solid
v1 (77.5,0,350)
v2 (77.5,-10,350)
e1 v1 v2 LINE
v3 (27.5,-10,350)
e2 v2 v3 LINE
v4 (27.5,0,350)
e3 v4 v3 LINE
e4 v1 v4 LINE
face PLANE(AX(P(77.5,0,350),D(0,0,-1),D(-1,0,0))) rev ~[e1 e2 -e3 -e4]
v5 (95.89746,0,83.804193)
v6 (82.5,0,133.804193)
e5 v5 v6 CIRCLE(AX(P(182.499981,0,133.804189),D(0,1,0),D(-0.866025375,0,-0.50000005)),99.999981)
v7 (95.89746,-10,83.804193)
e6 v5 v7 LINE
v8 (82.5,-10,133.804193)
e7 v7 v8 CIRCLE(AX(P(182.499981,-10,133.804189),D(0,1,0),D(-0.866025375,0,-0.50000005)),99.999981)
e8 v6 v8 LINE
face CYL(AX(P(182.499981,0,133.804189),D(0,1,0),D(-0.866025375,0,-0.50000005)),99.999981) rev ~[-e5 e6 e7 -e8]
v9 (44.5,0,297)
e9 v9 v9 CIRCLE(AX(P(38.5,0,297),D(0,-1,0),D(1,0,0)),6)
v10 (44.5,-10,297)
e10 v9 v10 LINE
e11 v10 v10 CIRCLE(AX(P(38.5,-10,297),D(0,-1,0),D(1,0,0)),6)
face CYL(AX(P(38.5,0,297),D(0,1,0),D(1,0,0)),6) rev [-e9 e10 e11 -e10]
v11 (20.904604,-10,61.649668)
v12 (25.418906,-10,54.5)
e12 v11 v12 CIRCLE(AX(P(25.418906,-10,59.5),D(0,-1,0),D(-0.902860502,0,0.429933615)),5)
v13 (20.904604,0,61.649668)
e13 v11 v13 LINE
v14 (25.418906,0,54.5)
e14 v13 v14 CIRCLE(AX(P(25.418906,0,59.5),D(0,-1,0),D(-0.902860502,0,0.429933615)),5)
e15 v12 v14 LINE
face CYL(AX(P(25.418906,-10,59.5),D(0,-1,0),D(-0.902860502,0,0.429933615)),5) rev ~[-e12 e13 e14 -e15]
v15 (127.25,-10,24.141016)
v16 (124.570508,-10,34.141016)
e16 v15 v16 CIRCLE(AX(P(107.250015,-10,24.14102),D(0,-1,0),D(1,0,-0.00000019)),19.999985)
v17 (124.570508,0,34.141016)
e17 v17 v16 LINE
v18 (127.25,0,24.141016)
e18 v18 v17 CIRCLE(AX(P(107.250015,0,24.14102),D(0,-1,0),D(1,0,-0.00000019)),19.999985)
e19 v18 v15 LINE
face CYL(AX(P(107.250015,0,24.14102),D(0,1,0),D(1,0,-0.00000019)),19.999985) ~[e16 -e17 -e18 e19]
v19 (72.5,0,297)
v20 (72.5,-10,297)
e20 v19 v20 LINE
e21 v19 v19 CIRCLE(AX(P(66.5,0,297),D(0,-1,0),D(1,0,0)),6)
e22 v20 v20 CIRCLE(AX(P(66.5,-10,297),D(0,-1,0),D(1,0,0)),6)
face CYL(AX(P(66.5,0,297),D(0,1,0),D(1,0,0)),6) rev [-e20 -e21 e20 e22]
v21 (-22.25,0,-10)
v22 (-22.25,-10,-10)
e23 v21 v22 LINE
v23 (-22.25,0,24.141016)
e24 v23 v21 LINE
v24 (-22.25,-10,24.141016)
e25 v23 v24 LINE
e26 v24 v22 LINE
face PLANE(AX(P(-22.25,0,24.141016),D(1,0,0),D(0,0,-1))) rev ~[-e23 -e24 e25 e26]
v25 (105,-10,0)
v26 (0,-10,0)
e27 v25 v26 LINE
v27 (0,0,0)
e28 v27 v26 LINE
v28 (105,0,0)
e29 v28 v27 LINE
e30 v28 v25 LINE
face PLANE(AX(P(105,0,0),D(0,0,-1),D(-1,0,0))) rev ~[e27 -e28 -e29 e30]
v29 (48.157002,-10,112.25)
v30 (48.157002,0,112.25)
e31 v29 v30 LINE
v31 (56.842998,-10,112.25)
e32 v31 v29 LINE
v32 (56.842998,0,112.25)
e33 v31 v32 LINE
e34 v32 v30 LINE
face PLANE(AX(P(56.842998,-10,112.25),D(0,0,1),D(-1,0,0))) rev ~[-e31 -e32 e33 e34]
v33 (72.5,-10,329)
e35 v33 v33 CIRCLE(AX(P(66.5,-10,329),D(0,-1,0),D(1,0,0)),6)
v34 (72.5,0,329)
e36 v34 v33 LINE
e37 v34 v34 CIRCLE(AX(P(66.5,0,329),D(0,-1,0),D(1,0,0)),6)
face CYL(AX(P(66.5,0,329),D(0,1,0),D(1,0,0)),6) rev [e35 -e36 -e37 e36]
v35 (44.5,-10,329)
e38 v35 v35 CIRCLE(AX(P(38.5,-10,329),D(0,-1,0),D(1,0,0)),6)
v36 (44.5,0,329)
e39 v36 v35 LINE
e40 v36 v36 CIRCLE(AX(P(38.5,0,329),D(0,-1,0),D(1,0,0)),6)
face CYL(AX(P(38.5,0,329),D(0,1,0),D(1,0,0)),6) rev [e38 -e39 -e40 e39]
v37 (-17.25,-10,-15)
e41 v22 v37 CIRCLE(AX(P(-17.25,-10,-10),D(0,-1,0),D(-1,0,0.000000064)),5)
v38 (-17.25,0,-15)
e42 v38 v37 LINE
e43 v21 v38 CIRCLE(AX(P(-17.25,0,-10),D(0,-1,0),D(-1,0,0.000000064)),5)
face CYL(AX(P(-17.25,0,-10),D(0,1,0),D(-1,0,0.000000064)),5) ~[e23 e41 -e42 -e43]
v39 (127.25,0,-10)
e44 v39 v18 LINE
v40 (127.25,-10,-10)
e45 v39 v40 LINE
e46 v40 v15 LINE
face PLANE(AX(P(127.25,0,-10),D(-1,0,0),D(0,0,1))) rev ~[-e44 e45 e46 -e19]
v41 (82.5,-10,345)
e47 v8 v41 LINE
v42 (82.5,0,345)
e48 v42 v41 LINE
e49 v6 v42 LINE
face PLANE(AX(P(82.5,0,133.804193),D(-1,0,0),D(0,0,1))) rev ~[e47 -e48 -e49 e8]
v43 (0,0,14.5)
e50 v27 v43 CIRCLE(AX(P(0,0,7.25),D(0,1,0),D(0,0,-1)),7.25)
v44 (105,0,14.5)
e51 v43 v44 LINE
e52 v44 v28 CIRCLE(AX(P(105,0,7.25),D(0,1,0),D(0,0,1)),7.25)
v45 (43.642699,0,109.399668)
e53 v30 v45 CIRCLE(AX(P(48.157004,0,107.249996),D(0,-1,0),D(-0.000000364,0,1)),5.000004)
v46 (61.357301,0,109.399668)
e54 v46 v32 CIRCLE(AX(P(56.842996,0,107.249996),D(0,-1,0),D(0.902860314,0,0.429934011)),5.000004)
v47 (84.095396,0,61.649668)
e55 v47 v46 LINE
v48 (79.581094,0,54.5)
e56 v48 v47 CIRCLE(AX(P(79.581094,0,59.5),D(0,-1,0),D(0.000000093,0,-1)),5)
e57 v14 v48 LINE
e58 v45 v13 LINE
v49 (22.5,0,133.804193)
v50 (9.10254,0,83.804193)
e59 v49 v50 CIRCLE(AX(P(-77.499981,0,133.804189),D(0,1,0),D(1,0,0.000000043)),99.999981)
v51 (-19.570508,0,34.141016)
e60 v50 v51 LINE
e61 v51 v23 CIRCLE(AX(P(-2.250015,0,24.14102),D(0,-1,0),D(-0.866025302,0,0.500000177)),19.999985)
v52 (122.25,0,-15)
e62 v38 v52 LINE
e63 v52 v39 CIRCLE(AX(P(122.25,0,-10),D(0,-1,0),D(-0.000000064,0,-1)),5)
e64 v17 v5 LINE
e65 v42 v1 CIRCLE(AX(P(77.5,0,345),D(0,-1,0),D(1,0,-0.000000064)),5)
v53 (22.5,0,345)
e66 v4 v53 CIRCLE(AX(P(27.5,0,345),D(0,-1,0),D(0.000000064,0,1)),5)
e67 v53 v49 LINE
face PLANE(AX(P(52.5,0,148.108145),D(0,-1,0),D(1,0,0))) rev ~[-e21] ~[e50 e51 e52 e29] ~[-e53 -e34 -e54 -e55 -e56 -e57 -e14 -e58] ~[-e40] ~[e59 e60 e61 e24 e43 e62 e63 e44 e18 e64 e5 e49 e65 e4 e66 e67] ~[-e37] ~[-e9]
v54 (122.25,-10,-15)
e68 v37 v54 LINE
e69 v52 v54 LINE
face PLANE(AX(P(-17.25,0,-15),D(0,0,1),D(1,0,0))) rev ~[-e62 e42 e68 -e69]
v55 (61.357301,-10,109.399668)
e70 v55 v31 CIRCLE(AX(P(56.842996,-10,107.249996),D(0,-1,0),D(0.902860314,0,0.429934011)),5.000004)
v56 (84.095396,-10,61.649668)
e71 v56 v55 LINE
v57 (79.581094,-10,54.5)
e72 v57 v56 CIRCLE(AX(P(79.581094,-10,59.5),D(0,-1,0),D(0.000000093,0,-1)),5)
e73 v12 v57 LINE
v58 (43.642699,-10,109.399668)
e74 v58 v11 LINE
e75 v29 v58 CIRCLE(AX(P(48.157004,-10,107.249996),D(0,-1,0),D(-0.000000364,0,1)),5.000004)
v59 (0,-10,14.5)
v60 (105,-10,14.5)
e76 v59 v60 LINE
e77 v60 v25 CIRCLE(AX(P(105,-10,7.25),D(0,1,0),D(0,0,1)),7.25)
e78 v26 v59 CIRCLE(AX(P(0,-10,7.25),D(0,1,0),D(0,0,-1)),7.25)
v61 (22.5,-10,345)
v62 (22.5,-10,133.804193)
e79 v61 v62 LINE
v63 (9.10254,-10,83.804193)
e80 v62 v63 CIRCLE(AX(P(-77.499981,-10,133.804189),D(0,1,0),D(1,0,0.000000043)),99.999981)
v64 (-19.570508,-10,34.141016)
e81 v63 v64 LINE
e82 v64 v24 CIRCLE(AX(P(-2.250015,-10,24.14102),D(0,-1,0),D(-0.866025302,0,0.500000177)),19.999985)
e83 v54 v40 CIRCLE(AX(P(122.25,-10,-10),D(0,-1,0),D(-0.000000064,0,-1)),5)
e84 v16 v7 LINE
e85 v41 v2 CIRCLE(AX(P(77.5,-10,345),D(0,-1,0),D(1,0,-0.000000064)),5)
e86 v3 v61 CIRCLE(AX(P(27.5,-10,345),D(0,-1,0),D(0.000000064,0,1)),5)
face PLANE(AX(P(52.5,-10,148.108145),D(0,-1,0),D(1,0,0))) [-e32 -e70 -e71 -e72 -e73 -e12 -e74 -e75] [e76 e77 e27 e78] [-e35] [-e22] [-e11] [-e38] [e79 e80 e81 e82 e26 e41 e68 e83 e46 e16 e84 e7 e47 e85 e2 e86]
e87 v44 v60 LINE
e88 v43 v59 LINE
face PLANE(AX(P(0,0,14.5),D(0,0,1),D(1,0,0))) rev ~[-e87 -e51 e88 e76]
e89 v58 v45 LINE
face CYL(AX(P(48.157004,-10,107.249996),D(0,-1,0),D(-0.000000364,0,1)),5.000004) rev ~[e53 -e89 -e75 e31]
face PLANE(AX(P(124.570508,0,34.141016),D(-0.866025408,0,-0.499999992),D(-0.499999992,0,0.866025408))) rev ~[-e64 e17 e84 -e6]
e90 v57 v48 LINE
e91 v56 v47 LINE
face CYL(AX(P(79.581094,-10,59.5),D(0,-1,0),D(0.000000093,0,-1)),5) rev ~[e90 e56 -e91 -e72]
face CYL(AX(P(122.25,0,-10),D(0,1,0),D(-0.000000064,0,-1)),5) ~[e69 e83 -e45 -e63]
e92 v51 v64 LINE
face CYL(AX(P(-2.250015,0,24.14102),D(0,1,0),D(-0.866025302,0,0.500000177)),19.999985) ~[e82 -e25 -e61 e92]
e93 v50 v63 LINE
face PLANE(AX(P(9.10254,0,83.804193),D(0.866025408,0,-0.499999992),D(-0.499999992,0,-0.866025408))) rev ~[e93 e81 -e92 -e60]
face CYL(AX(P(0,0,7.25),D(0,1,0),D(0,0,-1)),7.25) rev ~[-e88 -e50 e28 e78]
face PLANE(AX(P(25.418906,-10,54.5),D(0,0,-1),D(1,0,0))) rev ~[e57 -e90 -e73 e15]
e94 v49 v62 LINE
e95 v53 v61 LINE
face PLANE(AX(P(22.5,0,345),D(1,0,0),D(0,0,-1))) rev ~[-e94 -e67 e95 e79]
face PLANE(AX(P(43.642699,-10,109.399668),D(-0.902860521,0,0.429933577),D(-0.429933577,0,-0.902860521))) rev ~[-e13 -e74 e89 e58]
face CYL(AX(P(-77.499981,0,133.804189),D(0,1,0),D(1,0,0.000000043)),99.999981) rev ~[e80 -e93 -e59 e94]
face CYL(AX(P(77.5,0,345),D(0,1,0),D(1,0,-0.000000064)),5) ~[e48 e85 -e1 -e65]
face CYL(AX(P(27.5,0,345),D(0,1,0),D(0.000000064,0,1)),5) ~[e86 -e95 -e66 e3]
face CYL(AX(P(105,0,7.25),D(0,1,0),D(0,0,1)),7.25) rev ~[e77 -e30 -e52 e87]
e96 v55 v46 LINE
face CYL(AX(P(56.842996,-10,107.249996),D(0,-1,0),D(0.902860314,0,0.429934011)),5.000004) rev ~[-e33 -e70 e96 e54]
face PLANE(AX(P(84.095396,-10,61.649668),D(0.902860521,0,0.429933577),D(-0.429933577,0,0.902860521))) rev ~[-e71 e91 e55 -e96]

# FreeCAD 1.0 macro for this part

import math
import FreeCAD as App
import Part
import Sketcher

V = App.Vector
Q = App.Units.Quantity

doc = App.newDocument("Part")
body = doc.addObject("PartDesign::Body", "Body")

sketch1 = doc.addObject("Sketcher::SketchObject", "Sketch")
body.addObject(sketch1)
sketch1.AttachmentSupport = (doc.XZ_Plane, [""])
sketch1.MapMode = "FlatFace"
sketch1.addGeometry(Part.ArcOfCircle(Part.Circle(V(-17.25, -10, 0), V(0, 0, 1), 5), math.radians(179.999996), math.radians(270.000004)), False)
sketch1.addGeometry(Part.LineSegment(V(-17.25, -15, 0), V(122.25, -15, 0)), False)
sketch1.addGeometry(Part.ArcOfCircle(Part.Circle(V(122.25, -10, 0), V(0, 0, 1), 5), math.radians(-90.000004), math.radians(0.000004)), False)
sketch1.addGeometry(Part.LineSegment(V(127.25, -10, 0), V(127.25, 24.141016, 0)), False)
sketch1.addGeometry(Part.ArcOfCircle(Part.Circle(V(107.250015, 24.14102, 0), V(0, 0, 1), 19.999985), math.radians(-0.000011), math.radians(30.000012)), False)
sketch1.addGeometry(Part.LineSegment(V(124.570508, 34.141016, 0), V(95.89746, 83.804193, 0)), False)
sketch1.addGeometry(Part.ArcOfCircle(Part.Circle(V(182.499981, 133.804189, 0), V(0, 0, 1), 99.999981), math.radians(179.999998), math.radians(210.000003)), False)
sketch1.addGeometry(Part.LineSegment(V(82.5, 133.804193, 0), V(82.5, 345, 0)), False)
sketch1.addGeometry(Part.ArcOfCircle(Part.Circle(V(77.5, 345, 0), V(0, 0, 1), 5), math.radians(-0.000004), math.radians(90.000004)), False)
sketch1.addGeometry(Part.LineSegment(V(77.5, 350, 0), V(27.5, 350, 0)), False)
sketch1.addGeometry(Part.ArcOfCircle(Part.Circle(V(27.5, 345, 0), V(0, 0, 1), 5), math.radians(89.999996), math.radians(180.000004)), False)
sketch1.addGeometry(Part.LineSegment(V(22.5, 345, 0), V(22.5, 133.804193, 0)), False)
sketch1.addGeometry(Part.ArcOfCircle(Part.Circle(V(-77.499981, 133.804189, 0), V(0, 0, 1), 99.999981), math.radians(-30.000003), math.radians(0.000002)), False)
sketch1.addGeometry(Part.LineSegment(V(9.10254, 83.804193, 0), V(-19.570508, 34.141016, 0)), False)
sketch1.addGeometry(Part.ArcOfCircle(Part.Circle(V(-2.250015, 24.14102, 0), V(0, 0, 1), 19.999985), math.radians(149.999988), math.radians(180.000011)), False)
sketch1.addGeometry(Part.LineSegment(V(-22.25, 24.141016, 0), V(-22.25, -10, 0)), False)
sketch1.addGeometry(Part.ArcOfCircle(Part.Circle(V(105, 7.25, 0), V(0, 0, 1), 7.25), math.radians(-90), math.radians(90)), False)
sketch1.addGeometry(Part.LineSegment(V(105, 0, 0), V(0, 0, 0)), False)
sketch1.addGeometry(Part.ArcOfCircle(Part.Circle(V(0, 7.25, 0), V(0, 0, 1), 7.25), math.radians(90), math.radians(270)), False)
sketch1.addGeometry(Part.LineSegment(V(0, 14.5, 0), V(105, 14.5, 0)), False)
sketch1.addGeometry(Part.Circle(V(38.5, 297, 0), V(0, 0, 1), 6), False)
sketch1.addGeometry(Part.Circle(V(38.5, 329, 0), V(0, 0, 1), 6), False)
sketch1.addGeometry(Part.Circle(V(66.5, 297, 0), V(0, 0, 1), 6), False)
sketch1.addGeometry(Part.Circle(V(66.5, 329, 0), V(0, 0, 1), 6), False)
sketch1.addConstraint(Sketcher.Constraint("Coincident", 0, 2, 1, 1))
sketch1.addConstraint(Sketcher.Constraint("Coincident", 1, 2, 2, 1))
sketch1.addConstraint(Sketcher.Constraint("Coincident", 2, 2, 3, 1))
sketch1.addConstraint(Sketcher.Constraint("Coincident", 3, 2, 4, 1))
sketch1.addConstraint(Sketcher.Constraint("Coincident", 4, 2, 5, 1))
sketch1.addConstraint(Sketcher.Constraint("Coincident", 5, 2, 6, 2))
sketch1.addConstraint(Sketcher.Constraint("Coincident", 6, 1, 7, 1))
sketch1.addConstraint(Sketcher.Constraint("Coincident", 7, 2, 8, 1))
sketch1.addConstraint(Sketcher.Constraint("Coincident", 8, 2, 9, 1))
sketch1.addConstraint(Sketcher.Constraint("Coincident", 9, 2, 10, 1))
sketch1.addConstraint(Sketcher.Constraint("Coincident", 10, 2, 11, 1))
sketch1.addConstraint(Sketcher.Constraint("Coincident", 11, 2, 12, 2))
sketch1.addConstraint(Sketcher.Constraint("Coincident", 12, 1, 13, 1))
sketch1.addConstraint(Sketcher.Constraint("Coincident", 13, 2, 14, 1))
sketch1.addConstraint(Sketcher.Constraint("Coincident", 14, 2, 15, 1))
sketch1.addConstraint(Sketcher.Constraint("Coincident", 15, 2, 0, 1))
sketch1.addConstraint(Sketcher.Constraint("Coincident", 16, 1, 17, 1))
sketch1.addConstraint(Sketcher.Constraint("Coincident", 17, 2, 18, 2))
sketch1.addConstraint(Sketcher.Constraint("Coincident", 18, 1, 19, 1))
sketch1.addConstraint(Sketcher.Constraint("Coincident", 19, 2, 16, 2))
sketch1.addConstraint(Sketcher.Constraint("Horizontal", 1))
sketch1.addConstraint(Sketcher.Constraint("Vertical", 3))
sketch1.addConstraint(Sketcher.Constraint("Vertical", 7))
sketch1.addConstraint(Sketcher.Constraint("Horizontal", 9))
sketch1.addConstraint(Sketcher.Constraint("Vertical", 11))
sketch1.addConstraint(Sketcher.Constraint("Vertical", 15))
sketch1.addConstraint(Sketcher.Constraint("Horizontal", 17))
sketch1.addConstraint(Sketcher.Constraint("Horizontal", 19))
sketch1.addConstraint(Sketcher.Constraint("Coincident", 17, 2, -1, 1))
sketch1.addConstraint(Sketcher.Constraint("PointOnObject", 18, 3, -2))
sketch1.addConstraint(Sketcher.Constraint("PointOnObject", 18, 1, -2))
sketch1.addConstraint(Sketcher.Constraint("Diameter", 20, Q("12 mm")))
sketch1.addConstraint(Sketcher.Constraint("Diameter", 21, Q("12 mm")))
sketch1.addConstraint(Sketcher.Constraint("Diameter", 22, Q("12 mm")))
sketch1.addConstraint(Sketcher.Constraint("Diameter", 23, Q("12 mm")))
sketch1.addConstraint(Sketcher.Constraint("Radius", 0, Q("5 mm")))
sketch1.addConstraint(Sketcher.Constraint("Radius", 2, Q("5 mm")))
sketch1.addConstraint(Sketcher.Constraint("Radius", 8, Q("5 mm")))
sketch1.addConstraint(Sketcher.Constraint("Radius", 10, Q("5 mm")))
sketch1.addConstraint(Sketcher.Constraint("DistanceX", 9, 2, 9, 1, Q("50 mm")))
sketch1.addConstraint(Sketcher.Constraint("DistanceX", 17, 2, 17, 1, Q("105 mm")))
sketch1.addConstraint(Sketcher.Constraint("DistanceX", 19, 1, 19, 2, Q("105 mm")))
sketch1.addConstraint(Sketcher.Constraint("Radius", 16, Q("7.25 mm")))
sketch1.addConstraint(Sketcher.Constraint("DistanceX", 1, 1, 1, 2, Q("139.5 mm")))
sketch1.addConstraint(Sketcher.Constraint("DistanceY", 0, 3, -1, 1, Q("10 mm")))
sketch1.addConstraint(Sketcher.Constraint("DistanceY", -1, 1, 8, 3, Q("345 mm")))
sketch1.addConstraint(Sketcher.Constraint("DistanceX", -1, 1, 16, 3, Q("105 mm")))
sketch1.addConstraint(Sketcher.Constraint("DistanceY", -1, 1, 20, 3, Q("297 mm")))
sketch1.addConstraint(Sketcher.Constraint("DistanceY", -1, 1, 21, 3, Q("329 mm")))
sketch1.addConstraint(Sketcher.Constraint("DistanceY", -1, 1, 22, 3, Q("297 mm")))
sketch1.addConstraint(Sketcher.Constraint("DistanceY", -1, 1, 23, 3, Q("329 mm")))
sketch1.addConstraint(Sketcher.Constraint("DistanceY", 2, 2, -1, 1, Q("10 mm")))
sketch1.addConstraint(Sketcher.Constraint("DistanceY", -1, 1, 7, 2, Q("345 mm")))
sketch1.addConstraint(Sketcher.Constraint("DistanceY", -1, 1, 10, 2, Q("345 mm")))
sketch1.addConstraint(Sketcher.Constraint("DistanceY", 15, 2, -1, 1, Q("10 mm")))
sketch1.addConstraint(Sketcher.Constraint("DistanceX", 10, 3, 8, 3, Q("50.000001 mm")))
sketch1.addConstraint(Sketcher.Constraint("DistanceX", 10, 3, 20, 3, Q("11 mm")))
sketch1.addConstraint(Sketcher.Constraint("DistanceX", 10, 3, 21, 3, Q("11 mm")))
sketch1.addConstraint(Sketcher.Constraint("DistanceX", 20, 3, 22, 3, Q("28 mm")))
sketch1.addConstraint(Sketcher.Constraint("DistanceX", 23, 3, 8, 3, Q("11 mm")))
sketch1.addConstraint(Sketcher.Constraint("DistanceX", 1, 2, 2, 2, Q("5 mm")))
sketch1.addConstraint(Sketcher.Constraint("DistanceY", 3, 2, 4, 2, Q("10 mm")))
sketch1.addConstraint(Sketcher.Constraint("DistanceY", 5, 2, 6, 1, Q("50 mm")))
sketch1.addConstraint(Sketcher.Constraint("DistanceX", 8, 2, 7, 2, Q("5 mm")))
sketch1.addConstraint(Sketcher.Constraint("DistanceY", 5, 2, 11, 2, Q("50 mm")))
sketch1.addConstraint(Sketcher.Constraint("DistanceY", 12, 1, 11, 2, Q("50 mm")))
sketch1.addConstraint(Sketcher.Constraint("DistanceY", 14, 2, 13, 2, Q("10 mm")))
sketch1.addConstraint(Sketcher.Constraint("DistanceX", 14, 2, 0, 2, Q("5 mm")))
sketch1.addConstraint(Sketcher.Constraint("DistanceX", -1, 1, 8, 3, Q("77.5 mm")))
sketch1.addConstraint(Sketcher.Constraint("DistanceX", 0, 3, -1, 1, Q("17.25 mm")))
sketch1.addConstraint(Sketcher.Constraint("Radius", 6, Q("99.999981 mm")))
sketch1.addConstraint(Sketcher.Constraint("Radius", 12, Q("99.999981 mm")))
sketch1.addConstraint(Sketcher.Constraint("Radius", 4, Q("19.999985 mm")))
sketch1.addConstraint(Sketcher.Constraint("Radius", 14, Q("19.999985 mm")))
sketch1.addConstraint(Sketcher.Constraint("DistanceY", 3, 1, 3, 2, Q("34.141016 mm")))
sketch1.addConstraint(Sketcher.Constraint("DistanceY", 7, 1, 7, 2, Q("211.195807 mm")))
sketch1.addConstraint(Sketcher.Constraint("DistanceY", 15, 2, 15, 1, Q("34.141016 mm")))
sketch1.addConstraint(Sketcher.Constraint("DistanceY", -1, 1, 4, 3, Q("24.14102 mm")))
sketch1.addConstraint(Sketcher.Constraint("DistanceY", -1, 1, 6, 3, Q("133.804189 mm")))
sketch1.addConstraint(Sketcher.Constraint("DistanceY", -1, 1, 12, 3, Q("133.804189 mm")))
sketch1.addConstraint(Sketcher.Constraint("DistanceY", -1, 1, 14, 3, Q("24.14102 mm")))
pad1 = doc.addObject("PartDesign::Pad", "Pad")
body.addObject(pad1)
pad1.Profile = sketch1
pad1.Length = 10

sketch2 = doc.addObject("Sketcher::SketchObject", "Sketch001")
body.addObject(sketch2)
sketch2.AttachmentSupport = (doc.XZ_Plane, [""])
sketch2.MapMode = "FlatFace"
sketch2.AttachmentOffset = App.Placement(V(0, 0, 10), App.Rotation())
sketch2.addGeometry(Part.ArcOfCircle(Part.Circle(V(48.157004, 107.249996, 0), V(0, 0, 1), 5.000004), math.radians(90.000021), math.radians(154.536628)), False)
sketch2.addGeometry(Part.LineSegment(V(43.642699, 109.399668, 0), V(20.904604, 61.649668, 0)), False)
sketch2.addGeometry(Part.ArcOfCircle(Part.Circle(V(25.418906, 59.5, 0), V(0, 0, 1), 5), math.radians(154.536653), math.radians(269.999995)), False)
sketch2.addGeometry(Part.LineSegment(V(25.418906, 54.5, 0), V(79.581094, 54.5, 0)), False)
sketch2.addGeometry(Part.ArcOfCircle(Part.Circle(V(79.581094, 59.5, 0), V(0, 0, 1), 5), math.radians(-89.999995), math.radians(25.463347)), False)
sketch2.addGeometry(Part.LineSegment(V(84.095396, 61.649668, 0), V(61.357301, 109.399668, 0)), False)
sketch2.addGeometry(Part.ArcOfCircle(Part.Circle(V(56.842996, 107.249996, 0), V(0, 0, 1), 5.000004), math.radians(25.463372), math.radians(89.999979)), False)
sketch2.addGeometry(Part.LineSegment(V(56.842998, 112.25, 0), V(48.157002, 112.25, 0)), False)
sketch2.addConstraint(Sketcher.Constraint("Tangent", 0, 2, 1, 1))
sketch2.addConstraint(Sketcher.Constraint("Tangent", 1, 2, 2, 1))
sketch2.addConstraint(Sketcher.Constraint("Tangent", 2, 2, 3, 1))
sketch2.addConstraint(Sketcher.Constraint("Tangent", 3, 2, 4, 1))
sketch2.addConstraint(Sketcher.Constraint("Tangent", 4, 2, 5, 1))
sketch2.addConstraint(Sketcher.Constraint("Tangent", 5, 2, 6, 1))
sketch2.addConstraint(Sketcher.Constraint("Tangent", 6, 2, 7, 1))
sketch2.addConstraint(Sketcher.Constraint("Tangent", 7, 2, 0, 1))
sketch2.addConstraint(Sketcher.Constraint("Horizontal", 3))
sketch2.addConstraint(Sketcher.Constraint("Horizontal", 7))
sketch2.addConstraint(Sketcher.Constraint("Equal", 2, 4))
sketch2.addConstraint(Sketcher.Constraint("Equal", 0, 6))
sketch2.addConstraint(Sketcher.Constraint("Horizontal", 1, 2, 4, 2))
sketch2.addConstraint(Sketcher.Constraint("Radius", 2, Q("5 mm")))
sketch2.addConstraint(Sketcher.Constraint("DistanceY", -1, 1, 2, 3, Q("59.5 mm")))
sketch2.addConstraint(Sketcher.Constraint("DistanceY", -1, 1, 6, 2, Q("112.25 mm")))
sketch2.addConstraint(Sketcher.Constraint("DistanceY", 1, 2, 0, 2, Q("47.75 mm")))
sketch2.addConstraint(Sketcher.Constraint("DistanceX", -1, 1, 0, 2, Q("43.642699 mm")))
sketch2.addConstraint(Sketcher.Constraint("DistanceX", -1, 1, 5, 2, Q("61.357301 mm")))
sketch2.addConstraint(Sketcher.Constraint("DistanceX", 1, 2, 0, 3, Q("27.2524 mm")))
pocket1 = doc.addObject("PartDesign::Pocket", "Pocket")
body.addObject(pocket1)
pocket1.Profile = sketch2
pocket1.Length = 25

doc.recompute()
